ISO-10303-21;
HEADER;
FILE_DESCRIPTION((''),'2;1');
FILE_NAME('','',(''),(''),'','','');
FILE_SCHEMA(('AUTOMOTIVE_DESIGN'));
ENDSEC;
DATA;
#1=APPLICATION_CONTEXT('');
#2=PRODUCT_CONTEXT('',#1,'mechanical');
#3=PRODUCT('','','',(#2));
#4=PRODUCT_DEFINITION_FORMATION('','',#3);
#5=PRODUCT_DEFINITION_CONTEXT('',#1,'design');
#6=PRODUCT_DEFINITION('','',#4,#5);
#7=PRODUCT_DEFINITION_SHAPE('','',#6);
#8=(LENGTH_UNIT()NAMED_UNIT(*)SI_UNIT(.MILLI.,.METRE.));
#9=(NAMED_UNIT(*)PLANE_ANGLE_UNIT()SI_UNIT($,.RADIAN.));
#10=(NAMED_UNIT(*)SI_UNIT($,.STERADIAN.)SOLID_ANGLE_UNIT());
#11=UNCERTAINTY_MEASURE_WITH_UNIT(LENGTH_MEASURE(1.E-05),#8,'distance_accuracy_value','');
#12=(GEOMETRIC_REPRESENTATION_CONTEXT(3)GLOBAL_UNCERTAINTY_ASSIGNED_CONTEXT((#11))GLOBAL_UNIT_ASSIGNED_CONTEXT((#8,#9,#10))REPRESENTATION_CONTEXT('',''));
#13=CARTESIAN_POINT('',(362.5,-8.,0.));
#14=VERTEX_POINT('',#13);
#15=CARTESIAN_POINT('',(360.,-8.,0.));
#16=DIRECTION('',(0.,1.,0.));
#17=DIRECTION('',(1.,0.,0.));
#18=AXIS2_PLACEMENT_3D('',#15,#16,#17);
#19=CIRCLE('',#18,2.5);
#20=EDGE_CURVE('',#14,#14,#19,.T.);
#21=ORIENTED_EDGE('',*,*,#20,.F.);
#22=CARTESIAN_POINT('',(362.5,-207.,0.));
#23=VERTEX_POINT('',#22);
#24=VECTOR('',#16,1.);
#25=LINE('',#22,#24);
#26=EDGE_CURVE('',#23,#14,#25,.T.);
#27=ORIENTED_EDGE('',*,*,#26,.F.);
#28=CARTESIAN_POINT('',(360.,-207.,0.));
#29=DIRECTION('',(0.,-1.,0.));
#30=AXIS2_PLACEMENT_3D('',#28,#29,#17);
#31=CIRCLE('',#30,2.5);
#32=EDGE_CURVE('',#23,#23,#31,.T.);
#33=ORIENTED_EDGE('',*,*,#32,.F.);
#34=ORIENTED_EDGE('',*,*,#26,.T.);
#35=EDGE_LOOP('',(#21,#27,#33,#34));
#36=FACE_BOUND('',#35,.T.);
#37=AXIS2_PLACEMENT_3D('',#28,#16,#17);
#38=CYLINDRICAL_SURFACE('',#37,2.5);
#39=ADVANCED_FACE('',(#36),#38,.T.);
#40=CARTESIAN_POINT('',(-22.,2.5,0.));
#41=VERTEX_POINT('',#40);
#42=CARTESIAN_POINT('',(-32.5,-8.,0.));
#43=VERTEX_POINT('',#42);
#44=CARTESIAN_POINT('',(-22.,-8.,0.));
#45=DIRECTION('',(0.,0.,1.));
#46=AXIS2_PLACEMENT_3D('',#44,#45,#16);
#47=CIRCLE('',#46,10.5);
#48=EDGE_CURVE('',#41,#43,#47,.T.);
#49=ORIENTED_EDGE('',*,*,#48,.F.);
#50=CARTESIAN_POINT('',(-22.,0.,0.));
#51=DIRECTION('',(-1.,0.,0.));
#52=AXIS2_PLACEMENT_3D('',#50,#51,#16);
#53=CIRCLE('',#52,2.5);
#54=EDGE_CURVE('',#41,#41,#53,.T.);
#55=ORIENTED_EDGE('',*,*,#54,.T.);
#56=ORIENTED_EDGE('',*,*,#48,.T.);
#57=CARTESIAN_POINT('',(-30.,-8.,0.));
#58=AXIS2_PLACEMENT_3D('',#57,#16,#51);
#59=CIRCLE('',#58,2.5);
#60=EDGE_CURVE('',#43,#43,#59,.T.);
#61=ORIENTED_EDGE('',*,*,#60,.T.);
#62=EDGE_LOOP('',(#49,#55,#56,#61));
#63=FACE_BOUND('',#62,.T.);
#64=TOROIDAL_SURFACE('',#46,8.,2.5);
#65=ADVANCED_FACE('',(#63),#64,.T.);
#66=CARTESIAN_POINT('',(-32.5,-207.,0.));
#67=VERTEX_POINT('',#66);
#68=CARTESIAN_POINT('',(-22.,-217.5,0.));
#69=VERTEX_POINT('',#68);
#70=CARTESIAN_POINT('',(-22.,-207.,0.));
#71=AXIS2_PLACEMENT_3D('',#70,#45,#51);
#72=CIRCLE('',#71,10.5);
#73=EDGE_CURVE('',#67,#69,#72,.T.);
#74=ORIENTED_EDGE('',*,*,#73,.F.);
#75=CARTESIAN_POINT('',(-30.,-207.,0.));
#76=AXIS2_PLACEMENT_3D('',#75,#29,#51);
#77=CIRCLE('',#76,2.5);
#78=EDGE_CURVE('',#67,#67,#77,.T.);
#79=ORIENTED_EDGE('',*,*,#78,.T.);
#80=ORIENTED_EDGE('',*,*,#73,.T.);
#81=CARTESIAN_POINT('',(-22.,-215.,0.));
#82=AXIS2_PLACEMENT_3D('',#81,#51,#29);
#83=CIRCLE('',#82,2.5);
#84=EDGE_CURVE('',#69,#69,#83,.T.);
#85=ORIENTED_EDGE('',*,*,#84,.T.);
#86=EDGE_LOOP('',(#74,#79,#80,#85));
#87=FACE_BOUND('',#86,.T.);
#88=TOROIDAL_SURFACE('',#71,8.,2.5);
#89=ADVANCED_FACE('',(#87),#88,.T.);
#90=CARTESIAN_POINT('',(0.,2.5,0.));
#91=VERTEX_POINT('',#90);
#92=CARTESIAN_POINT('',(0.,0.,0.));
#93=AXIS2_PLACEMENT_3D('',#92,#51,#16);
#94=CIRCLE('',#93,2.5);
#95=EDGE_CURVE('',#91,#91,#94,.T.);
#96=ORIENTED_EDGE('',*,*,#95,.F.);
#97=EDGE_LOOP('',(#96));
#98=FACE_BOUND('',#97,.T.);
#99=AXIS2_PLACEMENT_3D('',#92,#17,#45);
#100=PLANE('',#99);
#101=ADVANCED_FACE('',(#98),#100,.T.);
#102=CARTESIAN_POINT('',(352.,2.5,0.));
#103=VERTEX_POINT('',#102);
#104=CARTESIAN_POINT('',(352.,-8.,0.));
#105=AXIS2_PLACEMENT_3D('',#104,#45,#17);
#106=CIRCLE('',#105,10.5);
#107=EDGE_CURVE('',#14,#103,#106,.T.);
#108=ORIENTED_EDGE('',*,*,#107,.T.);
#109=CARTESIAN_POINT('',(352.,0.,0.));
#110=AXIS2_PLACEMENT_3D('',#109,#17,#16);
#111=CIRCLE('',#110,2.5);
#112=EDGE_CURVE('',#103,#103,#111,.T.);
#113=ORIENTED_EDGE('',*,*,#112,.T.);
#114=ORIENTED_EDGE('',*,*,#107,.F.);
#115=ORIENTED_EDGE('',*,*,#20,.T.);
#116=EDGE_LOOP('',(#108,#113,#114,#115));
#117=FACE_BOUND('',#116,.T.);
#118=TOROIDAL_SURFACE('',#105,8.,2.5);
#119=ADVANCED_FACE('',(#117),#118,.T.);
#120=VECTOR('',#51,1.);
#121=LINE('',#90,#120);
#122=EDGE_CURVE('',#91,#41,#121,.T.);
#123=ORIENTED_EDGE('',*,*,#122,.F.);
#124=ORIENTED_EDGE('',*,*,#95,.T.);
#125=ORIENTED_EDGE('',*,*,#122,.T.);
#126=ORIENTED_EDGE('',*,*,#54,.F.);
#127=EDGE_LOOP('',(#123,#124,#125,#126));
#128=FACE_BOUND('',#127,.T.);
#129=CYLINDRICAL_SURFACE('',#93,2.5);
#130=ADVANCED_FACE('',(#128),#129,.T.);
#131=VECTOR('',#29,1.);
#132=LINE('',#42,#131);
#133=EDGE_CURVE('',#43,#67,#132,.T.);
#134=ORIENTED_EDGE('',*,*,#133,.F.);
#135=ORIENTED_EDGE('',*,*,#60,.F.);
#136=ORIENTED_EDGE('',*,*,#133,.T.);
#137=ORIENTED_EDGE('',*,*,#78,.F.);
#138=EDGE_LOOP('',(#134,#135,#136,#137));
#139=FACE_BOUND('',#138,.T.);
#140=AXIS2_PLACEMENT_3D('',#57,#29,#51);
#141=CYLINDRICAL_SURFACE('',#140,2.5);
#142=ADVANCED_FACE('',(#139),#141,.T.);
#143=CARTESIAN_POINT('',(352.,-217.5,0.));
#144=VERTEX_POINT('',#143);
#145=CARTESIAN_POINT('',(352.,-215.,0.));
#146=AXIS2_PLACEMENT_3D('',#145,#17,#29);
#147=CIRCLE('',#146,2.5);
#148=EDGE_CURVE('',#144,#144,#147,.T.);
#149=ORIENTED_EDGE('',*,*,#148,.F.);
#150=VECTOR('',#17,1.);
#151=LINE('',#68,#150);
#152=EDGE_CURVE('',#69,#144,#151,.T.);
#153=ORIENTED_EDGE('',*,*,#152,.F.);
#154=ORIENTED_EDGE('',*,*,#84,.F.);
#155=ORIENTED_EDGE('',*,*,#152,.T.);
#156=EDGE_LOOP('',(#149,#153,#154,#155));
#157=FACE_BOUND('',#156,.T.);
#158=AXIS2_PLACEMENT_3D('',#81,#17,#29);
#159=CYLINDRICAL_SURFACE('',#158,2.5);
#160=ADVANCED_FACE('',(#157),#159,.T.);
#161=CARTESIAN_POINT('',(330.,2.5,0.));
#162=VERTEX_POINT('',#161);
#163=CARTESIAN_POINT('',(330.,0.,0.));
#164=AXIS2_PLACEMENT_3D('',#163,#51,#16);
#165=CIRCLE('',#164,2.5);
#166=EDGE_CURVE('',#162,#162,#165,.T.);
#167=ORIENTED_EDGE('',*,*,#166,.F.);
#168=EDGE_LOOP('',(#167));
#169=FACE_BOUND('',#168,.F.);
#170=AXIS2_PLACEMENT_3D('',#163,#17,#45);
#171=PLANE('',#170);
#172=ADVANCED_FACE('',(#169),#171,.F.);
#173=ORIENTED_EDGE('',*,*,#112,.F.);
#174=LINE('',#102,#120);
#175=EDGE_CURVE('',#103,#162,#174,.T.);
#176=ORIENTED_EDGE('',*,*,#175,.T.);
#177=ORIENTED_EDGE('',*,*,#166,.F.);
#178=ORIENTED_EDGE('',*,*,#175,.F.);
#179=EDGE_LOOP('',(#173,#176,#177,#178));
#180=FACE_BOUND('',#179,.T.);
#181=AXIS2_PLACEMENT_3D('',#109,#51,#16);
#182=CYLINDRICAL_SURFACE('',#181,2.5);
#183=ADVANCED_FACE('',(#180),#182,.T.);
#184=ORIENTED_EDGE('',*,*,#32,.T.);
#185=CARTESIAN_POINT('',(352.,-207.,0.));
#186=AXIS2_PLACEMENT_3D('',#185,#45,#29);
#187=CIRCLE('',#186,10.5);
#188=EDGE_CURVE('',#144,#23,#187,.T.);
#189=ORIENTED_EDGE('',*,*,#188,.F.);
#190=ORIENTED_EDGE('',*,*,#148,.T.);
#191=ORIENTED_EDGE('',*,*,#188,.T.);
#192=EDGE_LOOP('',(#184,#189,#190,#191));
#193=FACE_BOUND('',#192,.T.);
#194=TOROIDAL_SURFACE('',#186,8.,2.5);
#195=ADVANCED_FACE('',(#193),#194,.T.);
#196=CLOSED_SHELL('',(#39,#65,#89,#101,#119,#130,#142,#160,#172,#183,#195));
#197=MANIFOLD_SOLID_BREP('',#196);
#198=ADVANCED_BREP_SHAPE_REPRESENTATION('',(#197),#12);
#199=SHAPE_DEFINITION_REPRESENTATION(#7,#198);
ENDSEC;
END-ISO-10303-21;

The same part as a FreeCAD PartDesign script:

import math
import FreeCAD as App
import Part
import Sketcher

V = App.Vector

doc = App.newDocument("Part")
body = doc.addObject("PartDesign::Body", "Body")

# Sketch on YZ plane
sketch1 = doc.addObject("Sketcher::SketchObject", "Sketch")
body.addObject(sketch1)
sketch1.AttachmentSupport = (doc.YZ_Plane, [""])
sketch1.MapMode = "FlatFace"
sketch1.addGeometry(Part.Circle(V(0, 0, 0), V(0, 0, 1), 2.5), False)
sketch1.addConstraint(Sketcher.Constraint("Coincident", 0, 3, -1, 1))
sketch1.addConstraint(Sketcher.Constraint("Diameter", 0, 5.0))

# Sketch on XY plane
sketch2 = doc.addObject("Sketcher::SketchObject", "Sketch001")
body.addObject(sketch2)
sketch2.AttachmentSupport = (doc.XY_Plane, [""])
sketch2.MapMode = "FlatFace"
sketch2.addGeometry(Part.LineSegment(V(0, 0, 0), V(-22, 0, 0)), False)
sketch2.addGeometry(Part.ArcOfCircle(Part.Circle(V(-22, -8, 0), V(0, 0, 1), 8), math.radians(90), math.radians(180)), False)
sketch2.addGeometry(Part.LineSegment(V(-30, -8, 0), V(-30, -207, 0)), False)
sketch2.addGeometry(Part.ArcOfCircle(Part.Circle(V(-22, -207, 0), V(0, 0, 1), 8), math.radians(180), math.radians(270)), False)
sketch2.addGeometry(Part.LineSegment(V(-22, -215, 0), V(352, -215, 0)), False)
sketch2.addGeometry(Part.ArcOfCircle(Part.Circle(V(352, -207, 0), V(0, 0, 1), 8), math.radians(-90), math.radians(0)), False)
sketch2.addGeometry(Part.LineSegment(V(360, -207, 0), V(360, -8, 0)), False)
sketch2.addGeometry(Part.ArcOfCircle(Part.Circle(V(352, -8, 0), V(0, 0, 1), 8), math.radians(0), math.radians(90)), False)
sketch2.addGeometry(Part.LineSegment(V(352, 0, 0), V(330, 0, 0)), False)
sketch2.addConstraint(Sketcher.Constraint("Tangent", 0, 2, 1, 1))
sketch2.addConstraint(Sketcher.Constraint("Tangent", 1, 2, 2, 1))
sketch2.addConstraint(Sketcher.Constraint("Tangent", 2, 2, 3, 1))
sketch2.addConstraint(Sketcher.Constraint("Tangent", 3, 2, 4, 1))
sketch2.addConstraint(Sketcher.Constraint("Tangent", 4, 2, 5, 1))
sketch2.addConstraint(Sketcher.Constraint("Tangent", 5, 2, 6, 1))
sketch2.addConstraint(Sketcher.Constraint("Tangent", 6, 2, 7, 1))
sketch2.addConstraint(Sketcher.Constraint("Tangent", 7, 2, 8, 1))
sketch2.addConstraint(Sketcher.Constraint("Horizontal", 0))
sketch2.addConstraint(Sketcher.Constraint("Vertical", 2))
sketch2.addConstraint(Sketcher.Constraint("Horizontal", 4))
sketch2.addConstraint(Sketcher.Constraint("Vertical", 6))
sketch2.addConstraint(Sketcher.Constraint("Horizontal", 8))
sketch2.addConstraint(Sketcher.Constraint("Coincident", 0, 1, -1, 1))
sketch2.addConstraint(Sketcher.Constraint("Equal", 1, 3))
sketch2.addConstraint(Sketcher.Constraint("Equal", 3, 5))
sketch2.addConstraint(Sketcher.Constraint("Equal", 5, 7))
sketch2.addConstraint(Sketcher.Constraint("PointOnObject", 7, 2, -1))
sketch2.addConstraint(Sketcher.Constraint("Equal", 0, 8))
sketch2.addConstraint(Sketcher.Constraint("Radius", 1, 8.0))
sketch2.addConstraint(Sketcher.Constraint("DistanceX", 0, 2, 0, 1, 22.0))
sketch2.addConstraint(Sketcher.Constraint("DistanceX", 4, 1, 4, 2, 374.0))
sketch2.addConstraint(Sketcher.Constraint("DistanceY", 2, 2, 2, 1, 199.0))
doc.recompute()

additivepipe = doc.addObject("PartDesign::AdditivePipe", "AdditivePipe")
body.addObject(additivepipe)
additivepipe.Profile = sketch1
additivepipe.Spine = (sketch2, ["Edge1", "Edge2", "Edge3", "Edge4", "Edge5", "Edge6", "Edge7", "Edge8", "Edge9"])

doc.recompute()
